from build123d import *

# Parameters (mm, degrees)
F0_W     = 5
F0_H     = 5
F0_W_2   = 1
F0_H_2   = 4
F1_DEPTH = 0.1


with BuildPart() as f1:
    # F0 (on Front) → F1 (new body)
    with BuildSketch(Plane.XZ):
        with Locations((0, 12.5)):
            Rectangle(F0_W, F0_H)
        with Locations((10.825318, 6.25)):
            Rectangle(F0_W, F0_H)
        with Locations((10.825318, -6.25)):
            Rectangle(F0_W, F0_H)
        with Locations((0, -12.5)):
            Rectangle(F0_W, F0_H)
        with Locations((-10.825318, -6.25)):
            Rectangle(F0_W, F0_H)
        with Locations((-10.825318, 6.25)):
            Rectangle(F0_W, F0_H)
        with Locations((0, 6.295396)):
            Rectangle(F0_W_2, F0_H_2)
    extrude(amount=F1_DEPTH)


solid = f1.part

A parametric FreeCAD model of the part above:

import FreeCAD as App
import Part
import Sketcher
from FreeCAD import Vector

doc = App.newDocument("Part")
body = doc.addObject("PartDesign::Body", "Body")
body.AllowCompound = True

sketch1 = body.newObject("Sketcher::SketchObject", "Sketch")
sketch1.AttachmentSupport = (doc.getObject("XZ_Plane"), [""])
sketch1.MapMode = "FlatFace"
sketch1.addGeometry([
    Part.LineSegment(Vector(-2.5, 15, 0), Vector(-2.5, 10, 0)),
    Part.LineSegment(Vector(-2.5, 10, 0), Vector(2.5, 10, 0)),
    Part.LineSegment(Vector(2.5, 10, 0), Vector(2.5, 15, 0)),
    Part.LineSegment(Vector(2.5, 15, 0), Vector(-2.5, 15, 0)),
    Part.LineSegment(Vector(8.3, 8.8, 0), Vector(8.3, 3.8, 0)),
    Part.LineSegment(Vector(8.3, 3.8, 0), Vector(13.3, 3.8, 0)),
    Part.LineSegment(Vector(13.3, 3.8, 0), Vector(13.3, 8.8, 0)),
    Part.LineSegment(Vector(13.3, 8.8, 0), Vector(8.3, 8.8, 0)),
    Part.LineSegment(Vector(8.3, -3.8, 0), Vector(8.3, -8.8, 0)),
    Part.LineSegment(Vector(8.3, -8.8, 0), Vector(13.3, -8.8, 0)),
    Part.LineSegment(Vector(13.3, -8.8, 0), Vector(13.3, -3.8, 0)),
    Part.LineSegment(Vector(13.3, -3.8, 0), Vector(8.3, -3.8, 0)),
    Part.LineSegment(Vector(-2.5, -10, 0), Vector(-2.5, -15, 0)),
    Part.LineSegment(Vector(-2.5, -15, 0), Vector(2.5, -15, 0)),
    Part.LineSegment(Vector(2.5, -15, 0), Vector(2.5, -10, 0)),
    Part.LineSegment(Vector(2.5, -10, 0), Vector(-2.5, -10, 0)),
    Part.LineSegment(Vector(-13.3, -3.8, 0), Vector(-13.3, -8.8, 0)),
    Part.LineSegment(Vector(-13.3, -8.8, 0), Vector(-8.3, -8.8, 0)),
    Part.LineSegment(Vector(-8.3, -8.8, 0), Vector(-8.3, -3.8, 0)),
    Part.LineSegment(Vector(-8.3, -3.8, 0), Vector(-13.3, -3.8, 0)),
    Part.LineSegment(Vector(-13.3, 8.8, 0), Vector(-13.3, 3.8, 0)),
    Part.LineSegment(Vector(-13.3, 3.8, 0), Vector(-8.3, 3.8, 0)),
    Part.LineSegment(Vector(-8.3, 3.8, 0), Vector(-8.3, 8.8, 0)),
    Part.LineSegment(Vector(-8.3, 8.8, 0), Vector(-13.3, 8.8, 0)),
    Part.LineSegment(Vector(-0.5, 8.3, 0), Vector(-0.5, 4.3, 0)),
    Part.LineSegment(Vector(-0.5, 4.3, 0), Vector(0.5, 4.3, 0)),
    Part.LineSegment(Vector(0.5, 4.3, 0), Vector(0.5, 8.3, 0)),
    Part.LineSegment(Vector(0.5, 8.3, 0), Vector(-0.5, 8.3, 0)),
], False)
sketch1.addConstraint([
    Sketcher.Constraint("Coincident", 0, 2, 1, 1),
    Sketcher.Constraint("Coincident", 1, 2, 2, 1),
    Sketcher.Constraint("Coincident", 2, 2, 3, 1),
    Sketcher.Constraint("Coincident", 3, 2, 0, 1),
    Sketcher.Constraint("Coincident", 4, 2, 5, 1),
    Sketcher.Constraint("Coincident", 5, 2, 6, 1),
    Sketcher.Constraint("Coincident", 6, 2, 7, 1),
    Sketcher.Constraint("Coincident", 7, 2, 4, 1),
    Sketcher.Constraint("Coincident", 8, 2, 9, 1),
    Sketcher.Constraint("Coincident", 9, 2, 10, 1),
    Sketcher.Constraint("Coincident", 10, 2, 11, 1),
    Sketcher.Constraint("Coincident", 11, 2, 8, 1),
    Sketcher.Constraint("Coincident", 12, 2, 13, 1),
    Sketcher.Constraint("Coincident", 13, 2, 14, 1),
    Sketcher.Constraint("Coincident", 14, 2, 15, 1),
    Sketcher.Constraint("Coincident", 15, 2, 12, 1),
    Sketcher.Constraint("Coincident", 16, 2, 17, 1),
    Sketcher.Constraint("Coincident", 17, 2, 18, 1),
    Sketcher.Constraint("Coincident", 18, 2, 19, 1),
    Sketcher.Constraint("Coincident", 19, 2, 16, 1),
    Sketcher.Constraint("Coincident", 20, 2, 21, 1),
    Sketcher.Constraint("Coincident", 21, 2, 22, 1),
    Sketcher.Constraint("Coincident", 22, 2, 23, 1),
    Sketcher.Constraint("Coincident", 23, 2, 20, 1),
    Sketcher.Constraint("Coincident", 24, 2, 25, 1),
    Sketcher.Constraint("Coincident", 25, 2, 26, 1),
    Sketcher.Constraint("Coincident", 26, 2, 27, 1),
    Sketcher.Constraint("Coincident", 27, 2, 24, 1),
    Sketcher.Constraint("Vertical", 0),
    Sketcher.Constraint("Horizontal", 1),
    Sketcher.Constraint("Vertical", 2),
    Sketcher.Constraint("Horizontal", 3),
    Sketcher.Constraint("Vertical", 4),
    Sketcher.Constraint("Horizontal", 5),
    Sketcher.Constraint("Vertical", 6),
    Sketcher.Constraint("Horizontal", 7),
    Sketcher.Constraint("Vertical", 8),
    Sketcher.Constraint("Horizontal", 9),
    Sketcher.Constraint("Vertical", 10),
    Sketcher.Constraint("Horizontal", 11),
    Sketcher.Constraint("Vertical", 12),
    Sketcher.Constraint("Horizontal", 13),
    Sketcher.Constraint("Vertical", 14),
    Sketcher.Constraint("Horizontal", 15),
    Sketcher.Constraint("Vertical", 16),
    Sketcher.Constraint("Horizontal", 17),
    Sketcher.Constraint("Vertical", 18),
    Sketcher.Constraint("Horizontal", 19),
    Sketcher.Constraint("Vertical", 20),
    Sketcher.Constraint("Horizontal", 21),
    Sketcher.Constraint("Vertical", 22),
    Sketcher.Constraint("Horizontal", 23),
    Sketcher.Constraint("Vertical", 24),
    Sketcher.Constraint("Horizontal", 25),
    Sketcher.Constraint("Vertical", 26),
    Sketcher.Constraint("Horizontal", 27),
    Sketcher.Constraint("Symmetric", 2, 2, 12, 2, -1, 1),
    Sketcher.Constraint("Symmetric", 0, 2, 14, 2, -1, 1),
    Sketcher.Constraint("Symmetric", 6, 2, 16, 2, -1, 1),
    Sketcher.Constraint("Symmetric", 4, 2, 18, 2, -1, 1),
    Sketcher.Constraint("Symmetric", 10, 2, 20, 2, -1, 1),
    Sketcher.Constraint("Symmetric", 8, 2, 22, 2, -1, 1),
    Sketcher.Constraint("Symmetric", 9, 2, 16, 2, -2),
    Sketcher.Constraint("Symmetric", 11, 2, 18, 2, -2),
    Sketcher.Constraint("Vertical", 3, 2, 12, 2),
    Sketcher.Constraint("Equal", 3, 5),
    Sketcher.Constraint("Equal", 23, 0),
    Sketcher.Constraint("Equal", 2, 4),
    Sketcher.Constraint("DistanceX", 1, 1, 1, 2, 5.0),
    Sketcher.Constraint("DistanceX", 25, 1, 25, 2, 1.0),
    Sketcher.Constraint("DistanceY", 24, 2, 24, 1, 4.0),
    Sketcher.Constraint("DistanceY", -1, 1, 0, 2, 10.0),
    Sketcher.Constraint("DistanceX", 0, 2, 24, 2, 2.0),
    Sketcher.Constraint("DistanceY", 8, 2, 4, 2, 12.5),
    Sketcher.Constraint("DistanceX", -1, 1, 4, 2, 8.325318),
    Sketcher.Constraint("DistanceY", -1, 1, 24, 2, 4.295396),
])
pad1 = body.newObject("PartDesign::Pad", "Pad")
pad1.Profile = sketch1
pad1.Length = 0.1

doc.recompute()
